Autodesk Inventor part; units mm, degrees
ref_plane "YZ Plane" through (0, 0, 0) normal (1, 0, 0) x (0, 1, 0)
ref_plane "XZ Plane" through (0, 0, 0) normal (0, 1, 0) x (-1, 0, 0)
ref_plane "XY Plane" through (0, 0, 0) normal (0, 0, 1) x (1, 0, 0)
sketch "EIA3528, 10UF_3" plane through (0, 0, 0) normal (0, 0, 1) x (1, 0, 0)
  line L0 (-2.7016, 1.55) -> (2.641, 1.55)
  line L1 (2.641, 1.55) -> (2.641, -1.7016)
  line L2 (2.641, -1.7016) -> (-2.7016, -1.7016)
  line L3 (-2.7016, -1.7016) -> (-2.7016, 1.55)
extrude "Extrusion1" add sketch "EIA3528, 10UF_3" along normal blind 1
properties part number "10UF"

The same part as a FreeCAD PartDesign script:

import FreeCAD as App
import Part
import Sketcher
Q = App.Units.Quantity

doc = App.newDocument("Part")
body = doc.addObject("PartDesign::Body", "Body")

# Sketch on XY plane
sketch1 = doc.addObject("Sketcher::SketchObject", "Sketch")
body.addObject(sketch1)
sketch1.AttachmentSupport = (doc.XY_Plane, [""])
sketch1.MapMode = "FlatFace"
sketch1.addGeometry(Part.LineSegment(App.Vector(2.6, 1.6, 0), App.Vector(-2.7, 1.6, 0)), False)
sketch1.addGeometry(Part.LineSegment(App.Vector(-2.7, 1.6, 0), App.Vector(-2.7, -1.7, 0)), False)
sketch1.addGeometry(Part.LineSegment(App.Vector(-2.7, -1.7, 0), App.Vector(2.6, -1.7, 0)), False)
sketch1.addGeometry(Part.LineSegment(App.Vector(2.6, -1.7, 0), App.Vector(2.6, 1.6, 0)), False)
sketch1.addConstraint(Sketcher.Constraint("Coincident", 0, 2, 1, 1))
sketch1.addConstraint(Sketcher.Constraint("Coincident", 1, 2, 2, 1))
sketch1.addConstraint(Sketcher.Constraint("Coincident", 2, 2, 3, 1))
sketch1.addConstraint(Sketcher.Constraint("Coincident", 3, 2, 0, 1))
sketch1.addConstraint(Sketcher.Constraint("Horizontal", 0))
sketch1.addConstraint(Sketcher.Constraint("Vertical", 1))
sketch1.addConstraint(Sketcher.Constraint("Horizontal", 2))
sketch1.addConstraint(Sketcher.Constraint("Vertical", 3))
sketch1.addConstraint(Sketcher.Constraint("DistanceY", -1, 1, 0, 2, Q("1.55 mm")))
sketch1.addConstraint(Sketcher.Constraint("DistanceX", 0, 2, 0, 1, Q("5.3426 mm")))
sketch1.addConstraint(Sketcher.Constraint("DistanceY", 1, 2, 1, 1, Q("3.2516 mm")))
sketch1.addConstraint(Sketcher.Constraint("DistanceX", -1, 1, 2, 2, Q("2.641 mm")))
pad1 = doc.addObject("PartDesign::Pad", "Pad")
body.addObject(pad1)
pad1.Profile = sketch1
pad1.Length = 1

doc.recompute()
